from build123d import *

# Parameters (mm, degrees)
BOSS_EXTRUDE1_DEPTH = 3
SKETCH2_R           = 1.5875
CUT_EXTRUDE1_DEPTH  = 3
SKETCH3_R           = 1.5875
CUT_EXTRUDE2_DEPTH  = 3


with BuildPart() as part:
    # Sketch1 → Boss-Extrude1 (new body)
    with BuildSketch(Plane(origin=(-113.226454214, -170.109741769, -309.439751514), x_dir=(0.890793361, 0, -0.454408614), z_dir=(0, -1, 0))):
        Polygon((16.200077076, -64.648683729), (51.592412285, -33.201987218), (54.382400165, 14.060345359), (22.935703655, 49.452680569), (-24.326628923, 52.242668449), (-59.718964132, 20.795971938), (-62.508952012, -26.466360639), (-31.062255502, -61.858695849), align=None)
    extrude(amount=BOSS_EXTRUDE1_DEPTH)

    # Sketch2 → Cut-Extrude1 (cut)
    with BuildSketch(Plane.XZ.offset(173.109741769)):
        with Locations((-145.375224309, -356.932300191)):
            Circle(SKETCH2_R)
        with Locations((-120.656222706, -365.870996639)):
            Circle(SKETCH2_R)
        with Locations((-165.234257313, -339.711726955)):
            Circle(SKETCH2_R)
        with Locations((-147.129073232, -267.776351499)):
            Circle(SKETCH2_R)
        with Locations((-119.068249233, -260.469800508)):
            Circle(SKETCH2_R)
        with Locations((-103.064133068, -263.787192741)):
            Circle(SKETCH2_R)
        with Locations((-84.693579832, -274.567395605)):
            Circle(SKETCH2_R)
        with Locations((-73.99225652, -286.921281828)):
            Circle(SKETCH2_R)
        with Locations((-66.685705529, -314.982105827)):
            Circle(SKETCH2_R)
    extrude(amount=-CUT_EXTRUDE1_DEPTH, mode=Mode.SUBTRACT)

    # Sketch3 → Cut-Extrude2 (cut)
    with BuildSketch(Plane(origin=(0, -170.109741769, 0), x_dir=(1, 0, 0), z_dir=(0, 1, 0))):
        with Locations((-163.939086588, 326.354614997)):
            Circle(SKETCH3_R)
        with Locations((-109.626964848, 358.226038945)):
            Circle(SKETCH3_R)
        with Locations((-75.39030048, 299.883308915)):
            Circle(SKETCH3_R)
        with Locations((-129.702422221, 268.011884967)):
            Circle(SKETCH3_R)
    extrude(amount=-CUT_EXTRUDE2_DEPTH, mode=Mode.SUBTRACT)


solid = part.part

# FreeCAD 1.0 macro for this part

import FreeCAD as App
import Part
import Sketcher


def add_polygon(sketch, points):
    """Adds a closed chain of lines whose ends are joined by coincident constraints."""
    first, n = sketch.GeometryCount, len(points)
    for a, b in zip(points, points[1:] + points[:1]):
        sketch.addGeometry(Part.LineSegment(App.Vector(*a, 0), App.Vector(*b, 0)), False)
    for i in range(n):
        sketch.addConstraint(Sketcher.Constraint("Coincident", first + i, 2, first + (i + 1) % n, 1))

doc = App.newDocument("Part")
body = doc.addObject("PartDesign::Body", "Body")

# Sketch on XZ plane
sketch1 = doc.addObject("Sketcher::SketchObject", "Sketch")
body.addObject(sketch1)
sketch1.AttachmentSupport = (doc.XZ_Plane, [""])
sketch1.MapMode = "FlatFace"
sketch1.AttachmentOffset = App.Placement(App.Vector(0, 0, 170.109742), App.Rotation())
add_polygon(sketch1, [(-128, -374), (-82, -362), (-58, -322), (-70, -276), (-111, -252), (-157, -264), (-181, -305), (-169, -350)])  # lines 0-7
sketch1.addConstraint(Sketcher.Constraint("Perpendicular", 0, 2))
sketch1.addConstraint(Sketcher.Constraint("Perpendicular", 1, 3))
sketch1.addConstraint(Sketcher.Constraint("Perpendicular", 2, 4))
sketch1.addConstraint(Sketcher.Constraint("Perpendicular", 3, 5))
sketch1.addConstraint(Sketcher.Constraint("Perpendicular", 4, 6))
sketch1.addConstraint(Sketcher.Constraint("Perpendicular", 5, 7))
sketch1.addConstraint(Sketcher.Constraint("Equal", 0, 1))
sketch1.addConstraint(Sketcher.Constraint("Equal", 1, 2))
sketch1.addConstraint(Sketcher.Constraint("Equal", 2, 3))
sketch1.addConstraint(Sketcher.Constraint("Equal", 3, 4))
sketch1.addConstraint(Sketcher.Constraint("Equal", 4, 5))
sketch1.addConstraint(Sketcher.Constraint("DistanceY", 3, 2, -1, 1, 251.8481))
sketch1.addConstraint(Sketcher.Constraint("DistanceY", 0, 2, 3, 2, 110.611798))
sketch1.addConstraint(Sketcher.Constraint("Distance", 0, 47.34461))
sketch1.addConstraint(Sketcher.Constraint("DistanceX", 1, 2, -1, 1, 58.393831))
sketch1.addConstraint(Sketcher.Constraint("DistanceY", 1, 2, -1, 1, 321.62672))
pad1 = doc.addObject("PartDesign::Pad", "Pad")
body.addObject(pad1)
pad1.Profile = sketch1
pad1.Length = 3

# Sketch on XZ plane
sketch2 = doc.addObject("Sketcher::SketchObject", "Sketch001")
body.addObject(sketch2)
sketch2.AttachmentSupport = (doc.XZ_Plane, [""])
sketch2.MapMode = "FlatFace"
sketch2.AttachmentOffset = App.Placement(App.Vector(0, 0, 173.109742), App.Rotation())
sketch2.addGeometry(Part.Circle(App.Vector(-145.4, -356.9, 0), App.Vector(0, 0, 1), 1.6), False)
sketch2.addGeometry(Part.Circle(App.Vector(-120.7, -365.9, 0), App.Vector(0, 0, 1), 1.6), False)
sketch2.addGeometry(Part.Circle(App.Vector(-165.2, -339.7, 0), App.Vector(0, 0, 1), 1.6), False)
sketch2.addGeometry(Part.Circle(App.Vector(-147.1, -267.8, 0), App.Vector(0, 0, 1), 1.6), False)
sketch2.addGeometry(Part.Circle(App.Vector(-119.1, -260.5, 0), App.Vector(0, 0, 1), 1.6), False)
sketch2.addGeometry(Part.Circle(App.Vector(-103.1, -263.8, 0), App.Vector(0, 0, 1), 1.6), False)
sketch2.addGeometry(Part.Circle(App.Vector(-84.7, -274.6, 0), App.Vector(0, 0, 1), 1.6), False)
sketch2.addGeometry(Part.Circle(App.Vector(-74, -286.9, 0), App.Vector(0, 0, 1), 1.6), False)
sketch2.addGeometry(Part.Circle(App.Vector(-66.7, -315, 0), App.Vector(0, 0, 1), 1.6), False)
sketch2.addConstraint(Sketcher.Constraint("Equal", 0, 1))
sketch2.addConstraint(Sketcher.Constraint("Equal", 1, 2))
sketch2.addConstraint(Sketcher.Constraint("Equal", 2, 3))
sketch2.addConstraint(Sketcher.Constraint("Equal", 3, 4))
sketch2.addConstraint(Sketcher.Constraint("Equal", 4, 5))
sketch2.addConstraint(Sketcher.Constraint("Equal", 5, 6))
sketch2.addConstraint(Sketcher.Constraint("Equal", 6, 7))
sketch2.addConstraint(Sketcher.Constraint("Equal", 7, 8))
sketch2.addConstraint(Sketcher.Constraint("Diameter", 0, 3.175))
sketch2.addConstraint(Sketcher.Constraint("DistanceX", 0, 3, 1, 3, 24.719002))
sketch2.addConstraint(Sketcher.Constraint("DistanceY", 0, 3, -1, 1, 356.9323))
sketch2.addConstraint(Sketcher.Constraint("DistanceY", 4, 3, -1, 1, 260.469801))
sketch2.addConstraint(Sketcher.Constraint("DistanceY", 1, 3, 6, 3, 91.303601))
sketch2.addConstraint(Sketcher.Constraint("DistanceY", 3, 3, -1, 1, 267.776351))
sketch2.addConstraint(Sketcher.Constraint("DistanceX", 4, 3, -1, 1, 119.068249))
sketch2.addConstraint(Sketcher.Constraint("DistanceX", 6, 3, -1, 1, 84.69358))
sketch2.addConstraint(Sketcher.Constraint("DistanceY", 7, 3, -1, 1, 286.921282))
sketch2.addConstraint(Sketcher.Constraint("DistanceY", 1, 3, 2, 3, 26.15927))
sketch2.addConstraint(Sketcher.Constraint("DistanceX", 3, 3, 0, 3, 1.753849))
sketch2.addConstraint(Sketcher.Constraint("DistanceX", 2, 3, 4, 3, 46.166008))
sketch2.addConstraint(Sketcher.Constraint("DistanceX", 3, 3, 5, 3, 44.06494))
sketch2.addConstraint(Sketcher.Constraint("DistanceY", 3, 3, 5, 3, 3.989159))
sketch2.addConstraint(Sketcher.Constraint("DistanceX", 7, 3, 8, 3, 7.306551))
sketch2.addConstraint(Sketcher.Constraint("DistanceY", 8, 3, 6, 3, 40.41471))
sketch2.addConstraint(Sketcher.Constraint("DistanceX", 0, 3, -1, 1, 145.375224))
sketch2.addConstraint(Sketcher.Constraint("DistanceY", 1, 3, -1, 1, 365.870997))
sketch2.addConstraint(Sketcher.Constraint("DistanceX", 7, 3, -1, 1, 73.992257))
pocket1 = doc.addObject("PartDesign::Pocket", "Pocket")
body.addObject(pocket1)
pocket1.Profile = sketch2
pocket1.Length = 3

# Sketch on XZ plane
sketch3 = doc.addObject("Sketcher::SketchObject", "Sketch002")
body.addObject(sketch3)
sketch3.AttachmentSupport = (doc.XZ_Plane, [""])
sketch3.MapMode = "FlatFace"
sketch3.AttachmentOffset = App.Placement(App.Vector(0, 0, 170.109742), App.Rotation())
sketch3.addGeometry(Part.Circle(App.Vector(-163.9, -326.4, 0), App.Vector(0, 0, 1), 1.6), False)
sketch3.addGeometry(Part.Circle(App.Vector(-109.6, -358.2, 0), App.Vector(0, 0, 1), 1.6), False)
sketch3.addGeometry(Part.Circle(App.Vector(-75.4, -299.9, 0), App.Vector(0, 0, 1), 1.6), False)
sketch3.addGeometry(Part.Circle(App.Vector(-129.7, -268, 0), App.Vector(0, 0, 1), 1.6), False)
sketch3.addConstraint(Sketcher.Constraint("Equal", 0, 1))
sketch3.addConstraint(Sketcher.Constraint("Equal", 1, 2))
sketch3.addConstraint(Sketcher.Constraint("Equal", 2, 3))
sketch3.addConstraint(Sketcher.Constraint("Diameter", 0, 3.175))
sketch3.addConstraint(Sketcher.Constraint("DistanceX", 2, 3, -1, 1, 75.3903))
sketch3.addConstraint(Sketcher.Constraint("DistanceY", 1, 3, -1, 1, 358.226039))
sketch3.addConstraint(Sketcher.Constraint("DistanceY", 2, 3, -1, 1, 299.883309))
sketch3.addConstraint(Sketcher.Constraint("DistanceX", 0, 3, 1, 3, 54.312122))
sketch3.addConstraint(Sketcher.Constraint("DistanceX", 3, 3, 2, 3, 54.312122))
sketch3.addConstraint(Sketcher.Constraint("DistanceY", 0, 3, 3, 3, 58.34273))
sketch3.addConstraint(Sketcher.Constraint("DistanceX", 0, 3, -1, 1, 163.939087))
sketch3.addConstraint(Sketcher.Constraint("DistanceY", 0, 3, -1, 1, 326.354615))
pocket2 = doc.addObject("PartDesign::Pocket", "Pocket001")
body.addObject(pocket2)
pocket2.Profile = sketch3
pocket2.Length = 3
pocket2.Reversed = True

doc.recompute()
